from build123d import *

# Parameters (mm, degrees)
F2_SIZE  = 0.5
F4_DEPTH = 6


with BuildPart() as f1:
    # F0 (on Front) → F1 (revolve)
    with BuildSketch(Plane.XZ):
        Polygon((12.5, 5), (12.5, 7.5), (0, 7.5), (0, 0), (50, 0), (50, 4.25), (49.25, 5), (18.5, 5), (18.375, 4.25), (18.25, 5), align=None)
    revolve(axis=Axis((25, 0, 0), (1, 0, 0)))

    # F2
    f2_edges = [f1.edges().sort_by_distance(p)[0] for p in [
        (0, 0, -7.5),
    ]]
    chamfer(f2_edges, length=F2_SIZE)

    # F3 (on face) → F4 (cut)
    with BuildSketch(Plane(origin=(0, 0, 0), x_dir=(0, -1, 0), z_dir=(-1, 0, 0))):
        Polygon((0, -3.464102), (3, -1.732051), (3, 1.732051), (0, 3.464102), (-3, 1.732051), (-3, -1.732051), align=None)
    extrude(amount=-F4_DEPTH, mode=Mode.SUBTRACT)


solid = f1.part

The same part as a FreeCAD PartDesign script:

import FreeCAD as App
import Part
import Sketcher
Q = App.Units.Quantity


def edges_at(feature, points):
    """Names of the edges that pass closest to the given points."""
    edges = feature.Shape.Edges
    near = lambda p: min(range(len(edges)), key=lambda i: edges[i].distToShape(Part.Vertex(*p))[0])
    return sorted({f"Edge{near(p) + 1}" for p in points})

doc = App.newDocument("Part")
body = doc.addObject("PartDesign::Body", "Body")

# Sketch on XZ plane
sketch1 = body.newObject("Sketcher::SketchObject", "Sketch")
sketch1.AttachmentSupport = (doc.getObject("XZ_Plane"), [""])
sketch1.MapMode = "FlatFace"
sketch1.addGeometry([
    Part.LineSegment(App.Vector(12.5, 5, 0), App.Vector(12.5, 7.5, 0)),  # 0
    Part.LineSegment(App.Vector(12.5, 7.5, 0), App.Vector(0, 7.5, 0)),  # 1
    Part.LineSegment(App.Vector(0, 7.5, 0), App.Vector(0, 0, 0)),  # 2
    Part.LineSegment(App.Vector(0, 0, 0), App.Vector(50, 0, 0)),  # 3
    Part.LineSegment(App.Vector(50, 0, 0), App.Vector(50, 4.2, 0)),  # 4
    Part.LineSegment(App.Vector(50, 4.2, 0), App.Vector(49.2, 5, 0)),  # 5
    Part.LineSegment(App.Vector(49.2, 5, 0), App.Vector(18.5, 5, 0)),  # 6
    Part.LineSegment(App.Vector(18.5, 5, 0), App.Vector(18.4, 4.2, 0)),  # 7
    Part.LineSegment(App.Vector(18.4, 4.2, 0), App.Vector(18.2, 5, 0)),  # 8
    Part.LineSegment(App.Vector(18.2, 5, 0), App.Vector(12.5, 5, 0)),  # 9
], False)
sketch1.addConstraint([
    Sketcher.Constraint("Coincident", 0, 2, 1, 1),
    Sketcher.Constraint("Coincident", 1, 2, 2, 1),
    Sketcher.Constraint("Coincident", 2, 2, 3, 1),
    Sketcher.Constraint("Coincident", 3, 2, 4, 1),
    Sketcher.Constraint("Coincident", 4, 2, 5, 1),
    Sketcher.Constraint("Coincident", 5, 2, 6, 1),
    Sketcher.Constraint("Coincident", 6, 2, 7, 1),
    Sketcher.Constraint("Coincident", 7, 2, 8, 1),
    Sketcher.Constraint("Coincident", 8, 2, 9, 1),
    Sketcher.Constraint("Coincident", 9, 2, 0, 1),
    Sketcher.Constraint("Vertical", 0),
    Sketcher.Constraint("Horizontal", 1),
    Sketcher.Constraint("Vertical", 2),
    Sketcher.Constraint("Horizontal", 3),
    Sketcher.Constraint("Vertical", 4),
    Sketcher.Constraint("Horizontal", 6),
    Sketcher.Constraint("Horizontal", 9),
    Sketcher.Constraint("Coincident", 2, 2, -1, 1),
    Sketcher.Constraint("Horizontal", 4, 2, 7, 2),
    Sketcher.Constraint("Horizontal", 6, 2, 8, 2),
    Sketcher.Constraint("Equal", 7, 8),
    Sketcher.Constraint("DistanceX", 3, 1, 3, 2, Q("50 mm")),
    Sketcher.Constraint("Angle", 5, Q("135 deg")),
    Sketcher.Constraint("DistanceX", 1, 2, 1, 1, Q("12.5 mm")),
    Sketcher.Constraint("DistanceY", 0, 1, 0, 2, Q("2.5 mm")),
    Sketcher.Constraint("DistanceY", 2, 2, 2, 1, Q("7.5 mm")),
    Sketcher.Constraint("DistanceX", 0, 2, 6, 2, Q("6 mm")),
    Sketcher.Constraint("DistanceX", 6, 2, 6, 1, Q("30.75 mm")),
    Sketcher.Constraint("DistanceX", 9, 2, 9, 1, Q("5.75 mm")),
])
revolution = body.newObject("PartDesign::Revolution", "Revolution")
revolution.Profile = sketch1
revolution.ReferenceAxis = (sketch1, ["H_Axis"])
revolution.Angle = 360
doc.recompute()

chamfer = body.newObject("PartDesign::Chamfer", "Chamfer")
chamfer.Base = (revolution, edges_at(revolution, [(0, 0, -7.5)]))
chamfer.Size = 0.5

# Sketch on YZ plane
sketch2 = body.newObject("Sketcher::SketchObject", "Sketch001")
sketch2.AttachmentSupport = (doc.getObject("YZ_Plane"), [""])
sketch2.MapMode = "FlatFace"
sketch2.addGeometry([
    Part.LineSegment(App.Vector(0, -3.5, 0), App.Vector(-3, -1.7, 0)),  # 0
    Part.LineSegment(App.Vector(-3, -1.7, 0), App.Vector(-3, 1.7, 0)),  # 1
    Part.LineSegment(App.Vector(-3, 1.7, 0), App.Vector(0, 3.5, 0)),  # 2
    Part.LineSegment(App.Vector(0, 3.5, 0), App.Vector(3, 1.7, 0)),  # 3
    Part.LineSegment(App.Vector(3, 1.7, 0), App.Vector(3, -1.7, 0)),  # 4
    Part.LineSegment(App.Vector(3, -1.7, 0), App.Vector(0, -3.5, 0)),  # 5
], False)
sketch2.addConstraint([
    Sketcher.Constraint("Coincident", 0, 2, 1, 1),
    Sketcher.Constraint("Coincident", 1, 2, 2, 1),
    Sketcher.Constraint("Coincident", 2, 2, 3, 1),
    Sketcher.Constraint("Coincident", 3, 2, 4, 1),
    Sketcher.Constraint("Coincident", 4, 2, 5, 1),
    Sketcher.Constraint("Coincident", 5, 2, 0, 1),
    Sketcher.Constraint("Vertical", 1),
    Sketcher.Constraint("Vertical", 4),
    Sketcher.Constraint("Symmetric", 0, 2, 3, 2, -1, 1),
    Sketcher.Constraint("Symmetric", 2, 2, 5, 2, -1, 1),
    Sketcher.Constraint("PointOnObject", 2, 2, -2),
    Sketcher.Constraint("Parallel", 2, 5),
    Sketcher.Constraint("Horizontal", 1, 2, 3, 2),
    Sketcher.Constraint("Angle", 0, Q("149.999997 deg")),
    Sketcher.Constraint("DistanceX", 0, 2, -1, 1, Q("3 mm")),
    Sketcher.Constraint("DistanceY", 1, 1, 1, 2, Q("3.464102 mm")),
])
pocket1 = body.newObject("PartDesign::Pocket", "Pocket")
pocket1.Profile = sketch2
pocket1.Length = 6
pocket1.Reversed = True

doc.recompute()
